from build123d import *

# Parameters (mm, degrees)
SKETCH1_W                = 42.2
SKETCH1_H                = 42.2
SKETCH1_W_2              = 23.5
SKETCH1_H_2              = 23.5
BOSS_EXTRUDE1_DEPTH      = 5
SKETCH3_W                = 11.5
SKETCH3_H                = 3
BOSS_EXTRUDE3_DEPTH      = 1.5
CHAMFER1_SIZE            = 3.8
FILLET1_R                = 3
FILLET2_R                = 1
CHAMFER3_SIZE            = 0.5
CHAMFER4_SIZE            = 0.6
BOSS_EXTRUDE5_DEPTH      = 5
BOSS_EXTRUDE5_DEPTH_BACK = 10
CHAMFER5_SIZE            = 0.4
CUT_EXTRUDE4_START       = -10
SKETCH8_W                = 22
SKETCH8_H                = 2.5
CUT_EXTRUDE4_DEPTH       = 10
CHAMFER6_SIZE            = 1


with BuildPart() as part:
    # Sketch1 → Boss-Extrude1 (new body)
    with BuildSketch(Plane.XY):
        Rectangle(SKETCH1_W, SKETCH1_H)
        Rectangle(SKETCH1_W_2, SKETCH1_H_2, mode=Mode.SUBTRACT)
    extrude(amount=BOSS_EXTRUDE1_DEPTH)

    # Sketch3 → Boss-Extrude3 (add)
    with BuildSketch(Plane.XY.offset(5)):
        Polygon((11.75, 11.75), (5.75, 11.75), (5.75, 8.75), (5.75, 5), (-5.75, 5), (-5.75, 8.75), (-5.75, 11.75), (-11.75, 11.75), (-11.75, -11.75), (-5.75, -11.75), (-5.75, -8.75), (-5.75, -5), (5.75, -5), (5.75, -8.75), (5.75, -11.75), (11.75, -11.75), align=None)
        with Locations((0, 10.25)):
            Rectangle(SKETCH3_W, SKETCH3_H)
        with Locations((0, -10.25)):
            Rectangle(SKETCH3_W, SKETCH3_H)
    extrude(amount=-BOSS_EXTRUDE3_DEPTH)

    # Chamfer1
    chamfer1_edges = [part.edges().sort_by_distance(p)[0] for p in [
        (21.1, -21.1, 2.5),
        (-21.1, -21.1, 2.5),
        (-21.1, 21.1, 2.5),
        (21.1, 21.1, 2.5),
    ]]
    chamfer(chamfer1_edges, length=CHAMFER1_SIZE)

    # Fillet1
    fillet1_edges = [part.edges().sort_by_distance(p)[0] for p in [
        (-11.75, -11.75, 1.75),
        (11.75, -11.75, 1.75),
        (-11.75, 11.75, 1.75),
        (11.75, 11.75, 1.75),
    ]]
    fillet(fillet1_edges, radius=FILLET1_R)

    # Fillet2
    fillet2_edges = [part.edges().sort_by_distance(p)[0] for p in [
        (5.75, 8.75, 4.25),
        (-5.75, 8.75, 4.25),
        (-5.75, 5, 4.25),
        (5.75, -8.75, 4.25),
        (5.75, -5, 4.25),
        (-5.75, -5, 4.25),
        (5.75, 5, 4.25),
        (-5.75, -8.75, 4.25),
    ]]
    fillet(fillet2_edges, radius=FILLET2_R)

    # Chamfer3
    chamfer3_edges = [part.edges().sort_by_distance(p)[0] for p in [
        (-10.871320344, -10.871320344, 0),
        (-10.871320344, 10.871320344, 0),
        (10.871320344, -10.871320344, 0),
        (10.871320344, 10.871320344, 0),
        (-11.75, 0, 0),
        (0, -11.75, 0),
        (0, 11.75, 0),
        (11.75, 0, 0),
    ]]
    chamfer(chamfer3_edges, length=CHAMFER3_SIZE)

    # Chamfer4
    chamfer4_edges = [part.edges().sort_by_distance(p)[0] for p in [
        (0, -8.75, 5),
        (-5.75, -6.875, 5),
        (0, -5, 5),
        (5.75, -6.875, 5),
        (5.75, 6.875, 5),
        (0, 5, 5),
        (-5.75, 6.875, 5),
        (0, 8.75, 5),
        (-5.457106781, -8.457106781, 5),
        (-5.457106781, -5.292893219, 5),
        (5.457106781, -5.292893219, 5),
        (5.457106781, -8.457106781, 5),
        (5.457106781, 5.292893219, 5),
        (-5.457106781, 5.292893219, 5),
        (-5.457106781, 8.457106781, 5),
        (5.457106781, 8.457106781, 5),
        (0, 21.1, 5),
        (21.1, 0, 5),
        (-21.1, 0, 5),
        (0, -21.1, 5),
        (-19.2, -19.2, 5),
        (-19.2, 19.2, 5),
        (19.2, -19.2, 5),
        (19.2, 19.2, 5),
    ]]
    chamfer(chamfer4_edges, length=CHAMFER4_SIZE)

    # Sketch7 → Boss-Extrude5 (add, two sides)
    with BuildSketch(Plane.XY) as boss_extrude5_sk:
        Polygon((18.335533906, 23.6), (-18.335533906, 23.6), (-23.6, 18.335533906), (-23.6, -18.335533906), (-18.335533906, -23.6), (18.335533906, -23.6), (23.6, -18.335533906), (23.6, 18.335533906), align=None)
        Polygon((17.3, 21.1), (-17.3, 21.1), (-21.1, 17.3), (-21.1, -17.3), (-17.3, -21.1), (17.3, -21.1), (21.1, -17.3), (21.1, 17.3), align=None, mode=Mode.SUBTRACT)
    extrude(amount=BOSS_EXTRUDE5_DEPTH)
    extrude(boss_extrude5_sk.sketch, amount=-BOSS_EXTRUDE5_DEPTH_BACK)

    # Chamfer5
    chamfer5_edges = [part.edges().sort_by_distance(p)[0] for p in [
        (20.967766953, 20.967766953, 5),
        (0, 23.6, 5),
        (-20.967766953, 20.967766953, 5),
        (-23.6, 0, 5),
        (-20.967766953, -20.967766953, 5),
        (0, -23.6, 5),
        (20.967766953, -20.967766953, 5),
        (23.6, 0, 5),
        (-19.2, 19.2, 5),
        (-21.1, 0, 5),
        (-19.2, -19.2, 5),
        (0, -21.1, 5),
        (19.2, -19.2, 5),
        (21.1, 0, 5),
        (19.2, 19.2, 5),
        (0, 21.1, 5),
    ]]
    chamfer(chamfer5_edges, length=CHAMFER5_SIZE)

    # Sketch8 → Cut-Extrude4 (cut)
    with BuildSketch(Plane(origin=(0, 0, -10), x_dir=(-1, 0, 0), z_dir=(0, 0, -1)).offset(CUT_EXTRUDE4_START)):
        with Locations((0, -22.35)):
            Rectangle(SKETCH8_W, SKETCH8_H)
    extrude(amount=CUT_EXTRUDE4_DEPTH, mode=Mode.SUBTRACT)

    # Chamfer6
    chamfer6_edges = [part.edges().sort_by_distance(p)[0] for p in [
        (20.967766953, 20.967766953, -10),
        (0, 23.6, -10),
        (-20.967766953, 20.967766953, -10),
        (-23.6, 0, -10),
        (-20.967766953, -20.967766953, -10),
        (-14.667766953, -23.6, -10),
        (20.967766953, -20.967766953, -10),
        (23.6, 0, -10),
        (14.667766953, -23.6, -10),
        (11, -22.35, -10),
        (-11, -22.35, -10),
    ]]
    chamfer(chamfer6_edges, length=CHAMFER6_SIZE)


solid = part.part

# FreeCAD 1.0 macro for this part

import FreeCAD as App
import Part
import Sketcher


def edges_at(feature, points):
    """Names of the edges that pass closest to the given points."""
    edges = feature.Shape.Edges
    near = lambda p: min(range(len(edges)), key=lambda i: edges[i].distToShape(Part.Vertex(*p))[0])
    return sorted({f"Edge{near(p) + 1}" for p in points})


def add_polygon(sketch, points):
    """Adds a closed chain of lines whose ends are joined by coincident constraints."""
    first, n = sketch.GeometryCount, len(points)
    for a, b in zip(points, points[1:] + points[:1]):
        sketch.addGeometry(Part.LineSegment(App.Vector(*a, 0), App.Vector(*b, 0)), False)
    for i in range(n):
        sketch.addConstraint(Sketcher.Constraint("Coincident", first + i, 2, first + (i + 1) % n, 1))

doc = App.newDocument("Part")
body = doc.addObject("PartDesign::Body", "Body")

sketch1 = body.newObject("Sketcher::SketchObject", "Sketch")
sketch1.AttachmentSupport = (doc.getObject("XY_Plane"), [""])
sketch1.MapMode = "FlatFace"
add_polygon(sketch1, [(-21, 21), (-21, -21), (21, -21), (21, 21)])
add_polygon(sketch1, [(12, -12), (-12, -12), (-12, 12), (12, 12)])
sketch1.addConstraint([
    Sketcher.Constraint("Vertical", 0),
    Sketcher.Constraint("Horizontal", 1),
    Sketcher.Constraint("Vertical", 2),
    Sketcher.Constraint("Horizontal", 3),
    Sketcher.Constraint("Horizontal", 4),
    Sketcher.Constraint("Vertical", 5),
    Sketcher.Constraint("Horizontal", 6),
    Sketcher.Constraint("Vertical", 7),
    Sketcher.Constraint("Symmetric", 0, 2, 2, 2, -1, 1),
    Sketcher.Constraint("Symmetric", 4, 2, 6, 2, -1, 1),
    Sketcher.Constraint("Equal", 3, 0),
    Sketcher.Constraint("Equal", 6, 5),
    Sketcher.Constraint("DistanceX", 1, 1, 1, 2, 42.2),
    Sketcher.Constraint("DistanceX", 4, 2, 4, 1, 23.5),
])
pad1 = body.newObject("PartDesign::Pad", "Pad")
pad1.Profile = sketch1
pad1.Length = 5

sketch2 = body.newObject("Sketcher::SketchObject", "Sketch001")
sketch2.AttachmentSupport = (doc.getObject("XY_Plane"), [""])
sketch2.MapMode = "FlatFace"
sketch2.AttachmentOffset = App.Placement(App.Vector(0, 0, 5), App.Rotation())
add_polygon(sketch2, [(11.8, 11.8), (-11.8, 11.8), (-11.8, -11.8), (11.8, -11.8)])
add_polygon(sketch2, [(-5.8, -8.8), (-5.8, -5), (5.8, -5), (5.8, -8.8)])
add_polygon(sketch2, [(5.8, 8.8), (5.8, 5), (-5.8, 5), (-5.8, 8.8)])
sketch2.addConstraint([
    Sketcher.Constraint("Horizontal", 0),
    Sketcher.Constraint("Vertical", 1),
    Sketcher.Constraint("Horizontal", 2),
    Sketcher.Constraint("Vertical", 3),
    Sketcher.Constraint("Vertical", 4),
    Sketcher.Constraint("Horizontal", 5),
    Sketcher.Constraint("Vertical", 6),
    Sketcher.Constraint("Horizontal", 7),
    Sketcher.Constraint("Vertical", 8),
    Sketcher.Constraint("Horizontal", 9),
    Sketcher.Constraint("Vertical", 10),
    Sketcher.Constraint("Horizontal", 11),
    Sketcher.Constraint("Symmetric", 0, 2, 2, 2, -1, 1),
    Sketcher.Constraint("Symmetric", 4, 2, 8, 2, -1, 1),
    Sketcher.Constraint("Symmetric", 6, 2, 10, 2, -1, 1),
    Sketcher.Constraint("Vertical", 6, 2, 8, 2),
    Sketcher.Constraint("Equal", 2, 1),
    Sketcher.Constraint("DistanceX", 0, 2, 0, 1, 23.5),
    Sketcher.Constraint("DistanceX", 5, 1, 5, 2, 11.5),
    Sketcher.Constraint("DistanceY", 4, 2, -1, 1, 5.0),
    Sketcher.Constraint("DistanceY", 2, 2, 6, 2, 3.0),
])
pad2 = body.newObject("PartDesign::Pad", "Pad001")
pad2.Profile = sketch2
pad2.Length = 1.5
pad2.Reversed = True
doc.recompute()

chamfer = body.newObject("PartDesign::Chamfer", "Chamfer")
chamfer.Base = (pad2, edges_at(pad2, [
    (21.1, -21.1, 2.5),
    (-21.1, -21.1, 2.5),
    (-21.1, 21.1, 2.5),
    (21.1, 21.1, 2.5),
]))
chamfer.Size = 3.8
doc.recompute()

fillet = body.newObject("PartDesign::Fillet", "Fillet")
fillet.Base = (chamfer, edges_at(chamfer, [
    (-11.75, -11.75, 1.75),
    (11.75, -11.75, 1.75),
    (-11.75, 11.75, 1.75),
    (11.75, 11.75, 1.75),
]))
fillet.Radius = 3
doc.recompute()

fillet2 = body.newObject("PartDesign::Fillet", "Fillet001")
fillet2.Base = (fillet, edges_at(fillet, [
    (5.75, 8.75, 4.25),
    (-5.75, 8.75, 4.25),
    (-5.75, 5, 4.25),
    (5.75, -8.75, 4.25),
    (5.75, -5, 4.25),
    (-5.75, -5, 4.25),
    (5.75, 5, 4.25),
    (-5.75, -8.75, 4.25),
]))
fillet2.Radius = 1
doc.recompute()

chamfer2 = body.newObject("PartDesign::Chamfer", "Chamfer001")
chamfer2.Base = (fillet2, edges_at(fillet2, [
    (-10.871, -10.871, 0),
    (-10.871, 10.871, 0),
    (10.871, -10.871, 0),
    (10.871, 10.871, 0),
    (-11.75, 0, 0),
    (0, -11.75, 0),
    (0, 11.75, 0),
    (11.75, 0, 0),
]))
chamfer2.Size = 0.5
doc.recompute()

chamfer3 = body.newObject("PartDesign::Chamfer", "Chamfer002")
chamfer3.Base = (chamfer2, edges_at(chamfer2, [
    (0, -8.75, 5),
    (-5.75, -6.875, 5),
    (0, -5, 5),
    (5.75, -6.875, 5),
    (5.75, 6.875, 5),
    (0, 5, 5),
    (-5.75, 6.875, 5),
    (0, 8.75, 5),
    (-5.457, -8.457, 5),
    (-5.457, -5.293, 5),
    (5.457, -5.293, 5),
    (5.457, -8.457, 5),
    (5.457, 5.293, 5),
    (-5.457, 5.293, 5),
    (-5.457, 8.457, 5),
    (5.457, 8.457, 5),
    (0, 21.1, 5),
    (21.1, 0, 5),
    (-21.1, 0, 5),
    (0, -21.1, 5),
    (-19.2, -19.2, 5),
    (-19.2, 19.2, 5),
    (19.2, -19.2, 5),
    (19.2, 19.2, 5),
]))
chamfer3.Size = 0.6

sketch3 = body.newObject("Sketcher::SketchObject", "Sketch002")
sketch3.AttachmentSupport = (doc.getObject("XY_Plane"), [""])
sketch3.MapMode = "FlatFace"
add_polygon(sketch3, [(18, 24), (-18, 24), (-24, 18), (-24, -18), (-18, -24), (18, -24), (24, -18), (24, 18)])
add_polygon(sketch3, [(-17, 21), (17, 21), (21, 17), (21, -17), (17, -21), (-17, -21), (-21, -17), (-21, 17)])
sketch3.addConstraint([
    Sketcher.Constraint("Horizontal", 0),
    Sketcher.Constraint("Vertical", 2),
    Sketcher.Constraint("Horizontal", 4),
    Sketcher.Constraint("Vertical", 6),
    Sketcher.Constraint("Horizontal", 8),
    Sketcher.Constraint("Vertical", 10),
    Sketcher.Constraint("Horizontal", 12),
    Sketcher.Constraint("Vertical", 14),
    Sketcher.Constraint("Symmetric", 0, 2, 4, 2, -1, 1),
    Sketcher.Constraint("Symmetric", 1, 2, 5, 2, -1, 1),
    Sketcher.Constraint("Symmetric", 8, 2, 12, 2, -1, 1),
    Sketcher.Constraint("Symmetric", 9, 2, 13, 2, -1, 1),
    Sketcher.Constraint("Perpendicular", 1, 3),
    Sketcher.Constraint("Perpendicular", 5, 7),
    Sketcher.Constraint("Parallel", 7, 9),
    Sketcher.Constraint("Perpendicular", 9, 11),
    Sketcher.Constraint("Perpendicular", 13, 15),
    Sketcher.Constraint("Horizontal", 2, 2, 5, 2),
    Sketcher.Constraint("Horizontal", 1, 2, 6, 2),
    Sketcher.Constraint("Horizontal", 10, 2, 13, 2),
    Sketcher.Constraint("Horizontal", 9, 2, 14, 2),
    Sketcher.Constraint("Vertical", 0, 2, 3, 2),
    Sketcher.Constraint("Equal", 4, 2),
    Sketcher.Constraint("Equal", 12, 10),
    Sketcher.Constraint("DistanceX", 8, 1, 8, 2, 34.6),
    Sketcher.Constraint("DistanceY", -1, 1, 0, 2, 23.6),
    Sketcher.Constraint("DistanceY", -1, 1, 8, 2, 21.1),
    Sketcher.Constraint("Distance", 1, 7.445079),
])
pad3 = body.newObject("PartDesign::Pad", "Pad002")
pad3.Profile = sketch3
pad3.Type = "TwoLengths"
pad3.Length = 5
pad3.Length2 = 10
doc.recompute()

chamfer4 = body.newObject("PartDesign::Chamfer", "Chamfer003")
chamfer4.Base = (pad3, edges_at(pad3, [
    (20.968, 20.968, 5),
    (0, 23.6, 5),
    (-20.968, 20.968, 5),
    (-23.6, 0, 5),
    (-20.968, -20.968, 5),
    (0, -23.6, 5),
    (20.968, -20.968, 5),
    (23.6, 0, 5),
    (-19.2, 19.2, 5),
    (-21.1, 0, 5),
    (-19.2, -19.2, 5),
    (0, -21.1, 5),
    (19.2, -19.2, 5),
    (21.1, 0, 5),
    (19.2, 19.2, 5),
    (0, 21.1, 5),
]))
chamfer4.Size = 0.4

sketch4 = body.newObject("Sketcher::SketchObject", "Sketch003")
sketch4.AttachmentSupport = (doc.getObject("XY_Plane"), [""])
sketch4.MapMode = "FlatFace"
add_polygon(sketch4, [(11, -21.1), (11, -23.6), (-11, -23.6), (-11, -21.1)])
sketch4.addConstraint([
    Sketcher.Constraint("Vertical", 0),
    Sketcher.Constraint("Horizontal", 1),
    Sketcher.Constraint("Vertical", 2),
    Sketcher.Constraint("Horizontal", 3),
    Sketcher.Constraint("DistanceX", 1, 2, 1, 1, 22.0),
    Sketcher.Constraint("DistanceY", 0, 2, 0, 1, 2.5),
    Sketcher.Constraint("DistanceX", -1, 1, 0, 2, 11.0),
    Sketcher.Constraint("DistanceY", 0, 2, -1, 1, 23.6),
])
pocket1 = body.newObject("PartDesign::Pocket", "Pocket")
pocket1.Profile = sketch4
pocket1.Length = 10
doc.recompute()

chamfer5 = body.newObject("PartDesign::Chamfer", "Chamfer004")
chamfer5.Base = (pocket1, edges_at(pocket1, [
    (20.968, 20.968, -10),
    (0, 23.6, -10),
    (-20.968, 20.968, -10),
    (-23.6, 0, -10),
    (-20.968, -20.968, -10),
    (-14.668, -23.6, -10),
    (20.968, -20.968, -10),
    (23.6, 0, -10),
    (14.668, -23.6, -10),
    (11, -22.35, -10),
    (-11, -22.35, -10),
]))
chamfer5.Size = 1

doc.recompute()
